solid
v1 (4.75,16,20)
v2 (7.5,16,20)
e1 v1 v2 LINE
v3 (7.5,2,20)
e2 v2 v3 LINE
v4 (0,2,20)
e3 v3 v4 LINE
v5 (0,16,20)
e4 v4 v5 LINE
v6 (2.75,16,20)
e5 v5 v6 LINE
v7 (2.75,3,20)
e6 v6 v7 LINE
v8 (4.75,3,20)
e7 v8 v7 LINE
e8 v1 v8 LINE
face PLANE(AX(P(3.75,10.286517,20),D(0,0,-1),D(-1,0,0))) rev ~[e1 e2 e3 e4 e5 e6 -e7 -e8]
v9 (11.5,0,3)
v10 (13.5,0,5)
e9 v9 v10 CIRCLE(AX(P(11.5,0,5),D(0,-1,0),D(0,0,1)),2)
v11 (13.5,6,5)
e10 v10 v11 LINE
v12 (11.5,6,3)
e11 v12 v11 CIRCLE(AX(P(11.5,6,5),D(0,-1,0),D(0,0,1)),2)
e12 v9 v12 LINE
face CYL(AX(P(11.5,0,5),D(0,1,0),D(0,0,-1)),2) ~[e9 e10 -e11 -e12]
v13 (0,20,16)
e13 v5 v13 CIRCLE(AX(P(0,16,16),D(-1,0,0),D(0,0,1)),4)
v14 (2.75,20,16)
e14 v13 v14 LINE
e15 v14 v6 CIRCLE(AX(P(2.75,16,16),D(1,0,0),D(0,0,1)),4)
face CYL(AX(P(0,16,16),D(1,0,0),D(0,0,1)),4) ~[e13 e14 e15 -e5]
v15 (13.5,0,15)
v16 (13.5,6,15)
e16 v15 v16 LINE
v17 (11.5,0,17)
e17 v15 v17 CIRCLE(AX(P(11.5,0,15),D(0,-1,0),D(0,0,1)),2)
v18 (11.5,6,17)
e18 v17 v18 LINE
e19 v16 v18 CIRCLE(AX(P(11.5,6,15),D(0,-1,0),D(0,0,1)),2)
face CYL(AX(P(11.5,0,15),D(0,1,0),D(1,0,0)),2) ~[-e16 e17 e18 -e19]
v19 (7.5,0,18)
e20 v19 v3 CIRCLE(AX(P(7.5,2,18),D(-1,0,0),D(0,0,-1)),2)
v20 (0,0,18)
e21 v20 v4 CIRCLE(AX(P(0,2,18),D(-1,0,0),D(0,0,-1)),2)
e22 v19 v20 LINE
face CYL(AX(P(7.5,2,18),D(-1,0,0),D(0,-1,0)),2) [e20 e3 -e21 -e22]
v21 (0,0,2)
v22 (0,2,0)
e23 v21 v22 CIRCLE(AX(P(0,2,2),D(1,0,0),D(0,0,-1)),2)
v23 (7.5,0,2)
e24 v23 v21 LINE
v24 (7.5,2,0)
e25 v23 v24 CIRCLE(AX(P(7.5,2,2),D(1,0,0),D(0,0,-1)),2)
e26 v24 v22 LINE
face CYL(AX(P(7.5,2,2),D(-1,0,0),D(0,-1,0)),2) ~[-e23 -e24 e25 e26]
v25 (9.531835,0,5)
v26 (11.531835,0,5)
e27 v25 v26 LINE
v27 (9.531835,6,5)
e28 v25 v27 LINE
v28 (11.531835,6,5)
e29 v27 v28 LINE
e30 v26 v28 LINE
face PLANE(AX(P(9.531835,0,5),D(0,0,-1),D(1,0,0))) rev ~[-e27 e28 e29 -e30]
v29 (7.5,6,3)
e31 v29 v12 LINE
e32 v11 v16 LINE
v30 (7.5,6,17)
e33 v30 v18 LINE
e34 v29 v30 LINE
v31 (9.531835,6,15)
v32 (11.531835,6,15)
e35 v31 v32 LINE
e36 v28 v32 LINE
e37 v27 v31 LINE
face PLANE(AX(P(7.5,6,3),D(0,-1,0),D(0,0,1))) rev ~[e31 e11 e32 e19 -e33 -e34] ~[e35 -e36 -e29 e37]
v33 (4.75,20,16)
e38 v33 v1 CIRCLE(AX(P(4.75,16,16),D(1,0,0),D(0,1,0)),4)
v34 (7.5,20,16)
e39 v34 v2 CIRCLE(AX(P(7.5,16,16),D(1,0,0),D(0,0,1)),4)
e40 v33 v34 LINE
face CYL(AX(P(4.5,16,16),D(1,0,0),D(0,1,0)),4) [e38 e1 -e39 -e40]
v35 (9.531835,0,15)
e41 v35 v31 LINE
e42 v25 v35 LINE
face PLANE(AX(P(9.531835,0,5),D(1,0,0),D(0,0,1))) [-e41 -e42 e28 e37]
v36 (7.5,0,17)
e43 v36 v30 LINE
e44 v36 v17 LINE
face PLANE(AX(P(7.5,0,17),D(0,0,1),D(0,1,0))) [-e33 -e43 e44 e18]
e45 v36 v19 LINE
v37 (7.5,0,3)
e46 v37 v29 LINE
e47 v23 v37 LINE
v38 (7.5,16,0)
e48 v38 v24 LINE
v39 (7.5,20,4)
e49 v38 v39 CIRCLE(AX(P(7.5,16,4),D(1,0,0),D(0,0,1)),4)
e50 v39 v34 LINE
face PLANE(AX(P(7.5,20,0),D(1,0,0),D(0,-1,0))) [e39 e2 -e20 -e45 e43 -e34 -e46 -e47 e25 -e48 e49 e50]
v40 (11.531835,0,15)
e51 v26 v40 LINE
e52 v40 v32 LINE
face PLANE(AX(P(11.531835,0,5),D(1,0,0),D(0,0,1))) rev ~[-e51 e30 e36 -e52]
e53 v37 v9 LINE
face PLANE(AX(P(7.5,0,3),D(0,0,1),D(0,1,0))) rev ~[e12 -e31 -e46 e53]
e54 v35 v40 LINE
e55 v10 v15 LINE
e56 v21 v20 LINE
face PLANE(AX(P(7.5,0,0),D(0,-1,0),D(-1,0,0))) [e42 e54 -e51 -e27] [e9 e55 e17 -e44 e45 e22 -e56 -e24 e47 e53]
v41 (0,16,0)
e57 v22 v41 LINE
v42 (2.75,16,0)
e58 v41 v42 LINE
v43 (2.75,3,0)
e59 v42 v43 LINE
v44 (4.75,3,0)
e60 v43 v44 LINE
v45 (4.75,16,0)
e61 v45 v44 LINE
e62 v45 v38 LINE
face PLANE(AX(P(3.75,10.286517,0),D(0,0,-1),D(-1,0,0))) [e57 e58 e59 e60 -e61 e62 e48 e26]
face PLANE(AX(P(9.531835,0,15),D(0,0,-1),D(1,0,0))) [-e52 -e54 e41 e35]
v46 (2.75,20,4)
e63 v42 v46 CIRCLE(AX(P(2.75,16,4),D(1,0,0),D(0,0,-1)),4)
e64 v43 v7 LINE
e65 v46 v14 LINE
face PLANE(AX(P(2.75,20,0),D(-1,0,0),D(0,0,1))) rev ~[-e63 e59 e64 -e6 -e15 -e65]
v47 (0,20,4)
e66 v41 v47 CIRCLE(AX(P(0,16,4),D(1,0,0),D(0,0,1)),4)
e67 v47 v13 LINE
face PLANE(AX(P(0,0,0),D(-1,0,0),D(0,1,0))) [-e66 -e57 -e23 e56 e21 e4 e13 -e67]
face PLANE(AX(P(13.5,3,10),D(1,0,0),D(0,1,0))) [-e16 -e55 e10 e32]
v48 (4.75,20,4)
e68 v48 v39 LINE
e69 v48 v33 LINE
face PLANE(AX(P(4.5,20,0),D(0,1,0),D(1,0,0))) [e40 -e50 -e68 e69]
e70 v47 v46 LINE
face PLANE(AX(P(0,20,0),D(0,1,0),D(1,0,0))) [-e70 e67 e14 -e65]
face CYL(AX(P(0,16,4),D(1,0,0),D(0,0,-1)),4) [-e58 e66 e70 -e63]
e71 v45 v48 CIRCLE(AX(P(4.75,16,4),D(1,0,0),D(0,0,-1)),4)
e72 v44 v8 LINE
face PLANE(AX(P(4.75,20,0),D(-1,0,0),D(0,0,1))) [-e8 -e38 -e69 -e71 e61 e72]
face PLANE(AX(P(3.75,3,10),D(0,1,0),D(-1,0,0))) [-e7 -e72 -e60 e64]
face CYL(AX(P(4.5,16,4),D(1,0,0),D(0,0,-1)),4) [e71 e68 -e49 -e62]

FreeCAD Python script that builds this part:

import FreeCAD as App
import Part
import Sketcher
from FreeCAD import Vector


def edges_at(feature, points):
    """Names of the edges that pass closest to the given points."""
    edges = feature.Shape.Edges
    near = lambda p: min(range(len(edges)), key=lambda i: edges[i].distToShape(Part.Vertex(*p))[0])
    return sorted({f"Edge{near(p) + 1}" for p in points})

doc = App.newDocument("Part")
body = doc.addObject("PartDesign::Body", "Body")

# Sketch on XY plane
sketch1 = body.newObject("Sketcher::SketchObject", "Sketch")
sketch1.AttachmentSupport = (doc.getObject("XY_Plane"), [""])
sketch1.MapMode = "FlatFace"
sketch1.addGeometry([
    Part.LineSegment(Vector(0, 20, 0), Vector(0, 0, 0)),  # 0
    Part.LineSegment(Vector(0, 0, 0), Vector(7.5, 0, 0)),  # 1
    Part.LineSegment(Vector(7.5, 0, 0), Vector(7.5, 20, 0)),  # 2
    Part.LineSegment(Vector(7.5, 20, 0), Vector(4.5, 20, 0)),  # 3
    Part.LineSegment(Vector(4.5, 20, 0), Vector(4.5, 3, 0)),  # 4
    Part.LineSegment(Vector(4.5, 3, 0), Vector(3, 3, 0)),  # 5
    Part.LineSegment(Vector(3, 3, 0), Vector(3, 20, 0)),  # 6
    Part.LineSegment(Vector(3, 20, 0), Vector(0, 20, 0)),  # 7
], False)
sketch1.addConstraint([
    Sketcher.Constraint("Coincident", 0, 2, 1, 1),
    Sketcher.Constraint("Coincident", 1, 2, 2, 1),
    Sketcher.Constraint("Coincident", 2, 2, 3, 1),
    Sketcher.Constraint("Coincident", 3, 2, 4, 1),
    Sketcher.Constraint("Coincident", 4, 2, 5, 1),
    Sketcher.Constraint("Coincident", 5, 2, 6, 1),
    Sketcher.Constraint("Coincident", 6, 2, 7, 1),
    Sketcher.Constraint("Coincident", 7, 2, 0, 1),
    Sketcher.Constraint("Vertical", 0),
    Sketcher.Constraint("Horizontal", 1),
    Sketcher.Constraint("Vertical", 2),
    Sketcher.Constraint("Horizontal", 3),
    Sketcher.Constraint("Vertical", 4),
    Sketcher.Constraint("Horizontal", 5),
    Sketcher.Constraint("Vertical", 6),
    Sketcher.Constraint("Horizontal", 7),
    Sketcher.Constraint("Coincident", 0, 2, -1, 1),
    Sketcher.Constraint("Horizontal", 3, 2, 6, 2),
    Sketcher.Constraint("Equal", 3, 7),
    Sketcher.Constraint("DistanceX", 3, 2, 3, 1, 3.0),
    Sketcher.Constraint("DistanceY", 0, 2, 0, 1, 20.0),
    Sketcher.Constraint("DistanceY", 4, 2, 4, 1, 17.0),
    Sketcher.Constraint("DistanceX", 1, 1, 1, 2, 7.5),
])
pad1 = body.newObject("PartDesign::Pad", "Pad")
pad1.Profile = sketch1
pad1.Length = 20

# Sketch on YZ plane
sketch2 = body.newObject("Sketcher::SketchObject", "Sketch001")
sketch2.AttachmentSupport = (doc.getObject("YZ_Plane"), [""])
sketch2.MapMode = "FlatFace"
sketch2.AttachmentOffset = App.Placement(Vector(0, 0, 7.5), App.Rotation())
sketch2.addGeometry([
    Part.LineSegment(Vector(0, 17, 0), Vector(0, 3, 0)),
    Part.LineSegment(Vector(0, 3, 0), Vector(6, 3, 0)),
    Part.LineSegment(Vector(6, 3, 0), Vector(6, 17, 0)),
    Part.LineSegment(Vector(6, 17, 0), Vector(0, 17, 0)),
], False)
sketch2.addConstraint([
    Sketcher.Constraint("Coincident", 0, 2, 1, 1),
    Sketcher.Constraint("Coincident", 1, 2, 2, 1),
    Sketcher.Constraint("Coincident", 2, 2, 3, 1),
    Sketcher.Constraint("Coincident", 3, 2, 0, 1),
    Sketcher.Constraint("Vertical", 0),
    Sketcher.Constraint("Horizontal", 1),
    Sketcher.Constraint("Vertical", 2),
    Sketcher.Constraint("Horizontal", 3),
    Sketcher.Constraint("PointOnObject", 0, 2, -2),
    Sketcher.Constraint("DistanceX", 1, 1, 1, 2, 6.0),
    Sketcher.Constraint("DistanceY", 0, 2, 0, 1, 14.0),
    Sketcher.Constraint("DistanceY", -1, 1, 0, 2, 3.0),
])
pad2 = body.newObject("PartDesign::Pad", "Pad001")
pad2.Profile = sketch2
pad2.Length = 6

# Sketch on XZ plane
sketch3 = body.newObject("Sketcher::SketchObject", "Sketch002")
sketch3.AttachmentSupport = (doc.getObject("XZ_Plane"), [""])
sketch3.MapMode = "FlatFace"
sketch3.addGeometry([
    Part.LineSegment(Vector(9.5, 15, 0), Vector(9.5, 5, 0)),
    Part.LineSegment(Vector(9.5, 5, 0), Vector(11.5, 5, 0)),
    Part.LineSegment(Vector(11.5, 5, 0), Vector(11.5, 15, 0)),
    Part.LineSegment(Vector(11.5, 15, 0), Vector(9.5, 15, 0)),
], False)
sketch3.addConstraint([
    Sketcher.Constraint("Coincident", 0, 2, 1, 1),
    Sketcher.Constraint("Coincident", 1, 2, 2, 1),
    Sketcher.Constraint("Coincident", 2, 2, 3, 1),
    Sketcher.Constraint("Coincident", 3, 2, 0, 1),
    Sketcher.Constraint("Vertical", 0),
    Sketcher.Constraint("Horizontal", 1),
    Sketcher.Constraint("Vertical", 2),
    Sketcher.Constraint("Horizontal", 3),
    Sketcher.Constraint("DistanceX", 1, 1, 1, 2, 2.0),
    Sketcher.Constraint("DistanceY", 0, 2, 0, 1, 10.0),
    Sketcher.Constraint("DistanceY", -1, 1, 0, 2, 5.0),
    Sketcher.Constraint("DistanceX", -1, 1, 0, 2, 9.531835),
])
pocket1 = body.newObject("PartDesign::Pocket", "Pocket")
pocket1.Profile = sketch3
pocket1.Length = 10
doc.recompute()

fillet = body.newObject("PartDesign::Fillet", "Fillet")
fillet.Base = (pocket1, edges_at(pocket1, [(3.75, 0, 20), (3.75, 0, 0)]))
fillet.Radius = 2
doc.recompute()

fillet2 = body.newObject("PartDesign::Fillet", "Fillet001")
fillet2.Base = (fillet, edges_at(fillet, [(13.5, 3, 17), (13.5, 3, 3)]))
fillet2.Radius = 2
doc.recompute()

fillet3 = body.newObject("PartDesign::Fillet", "Fillet002")
fillet3.Base = (fillet2, edges_at(fillet2, [
    (1.5, 20, 20),
    (6, 20, 20),
    (6, 20, 0),
    (1.5, 20, 0),
]))
fillet3.Radius = 4

# Sketch on XZ plane
sketch4 = body.newObject("Sketcher::SketchObject", "Sketch003")
sketch4.AttachmentSupport = (doc.getObject("XZ_Plane"), [""])
sketch4.MapMode = "FlatFace"
sketch4.AttachmentOffset = App.Placement(Vector(0, 0, -20), App.Rotation())
sketch4.addGeometry([
    Part.LineSegment(Vector(4.8, 20, 0), Vector(4.8, 0, 0)),
    Part.LineSegment(Vector(4.8, 0, 0), Vector(2.8, 0, 0)),
    Part.LineSegment(Vector(2.8, 0, 0), Vector(2.8, 20, 0)),
    Part.LineSegment(Vector(2.8, 20, 0), Vector(4.8, 20, 0)),
], False)
sketch4.addConstraint([
    Sketcher.Constraint("Coincident", 0, 2, 1, 1),
    Sketcher.Constraint("Coincident", 1, 2, 2, 1),
    Sketcher.Constraint("Coincident", 2, 2, 3, 1),
    Sketcher.Constraint("Coincident", 3, 2, 0, 1),
    Sketcher.Constraint("Vertical", 0),
    Sketcher.Constraint("Horizontal", 1),
    Sketcher.Constraint("Vertical", 2),
    Sketcher.Constraint("Horizontal", 3),
    Sketcher.Constraint("PointOnObject", 0, 2, -1),
    Sketcher.Constraint("DistanceX", 1, 2, 1, 1, 2.0),
    Sketcher.Constraint("DistanceY", 0, 2, 0, 1, 20.0),
    Sketcher.Constraint("DistanceX", -1, 1, 0, 2, 4.75),
])
pocket2 = body.newObject("PartDesign::Pocket", "Pocket001")
pocket2.Profile = sketch4
pocket2.Length = 17
pocket2.Reversed = True

doc.recompute()
